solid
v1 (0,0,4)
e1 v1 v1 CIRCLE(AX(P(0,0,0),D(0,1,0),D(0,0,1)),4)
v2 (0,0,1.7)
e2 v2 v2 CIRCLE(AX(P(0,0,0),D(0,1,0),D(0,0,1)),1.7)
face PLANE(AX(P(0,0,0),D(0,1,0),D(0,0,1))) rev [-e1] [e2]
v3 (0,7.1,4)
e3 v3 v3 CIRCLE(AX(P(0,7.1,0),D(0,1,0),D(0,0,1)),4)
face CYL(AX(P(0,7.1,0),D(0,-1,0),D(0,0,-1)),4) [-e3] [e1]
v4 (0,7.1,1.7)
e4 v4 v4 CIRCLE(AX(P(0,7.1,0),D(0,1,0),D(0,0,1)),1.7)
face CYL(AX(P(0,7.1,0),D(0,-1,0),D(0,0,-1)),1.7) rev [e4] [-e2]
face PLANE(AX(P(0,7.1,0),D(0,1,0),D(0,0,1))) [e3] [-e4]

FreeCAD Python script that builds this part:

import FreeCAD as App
import Part
import Sketcher

V = App.Vector
Q = App.Units.Quantity

doc = App.newDocument("Part")
params = doc.addObject("Spreadsheet::Sheet", "Params")
for row, (alias, value) in enumerate([
    ("sketch1_diameter", "8 mm"),
    ("sketch1_diameter2", "3.4 mm"),
    ("pad1_length", "7.1 mm"),
], start=1):
    params.set(f"A{row}", alias)
    params.set(f"B{row}", "=" + value)
    params.setAlias(f"B{row}", alias)

body = doc.addObject("PartDesign::Body", "Body")

sketch1 = doc.addObject("Sketcher::SketchObject", "Sketch")
body.addObject(sketch1)
sketch1.AttachmentSupport = (doc.XZ_Plane, [""])
sketch1.MapMode = "FlatFace"
sketch1.addGeometry(Part.Circle(V(0, 0, 0), V(0, 0, 1), 4), False)
sketch1.addGeometry(Part.Circle(V(0, 0, 0), V(0, 0, 1), 1.7), False)
sketch1.addConstraint(Sketcher.Constraint("Coincident", 0, 3, -1, 1))
sketch1.addConstraint(Sketcher.Constraint("Coincident", 1, 3, -1, 1))
sketch1.addConstraint(Sketcher.Constraint("Diameter", 0, Q("8 mm")))
sketch1.addConstraint(Sketcher.Constraint("Diameter", 1, Q("3.4 mm")))
sketch1.setExpression("Constraints[2]", "Params.sketch1_diameter")
sketch1.setExpression("Constraints[3]", "Params.sketch1_diameter2")
pad1 = doc.addObject("PartDesign::Pad", "Pad")
body.addObject(pad1)
pad1.Profile = sketch1
pad1.setExpression("Length", "Params.pad1_length")
pad1.Reversed = True

doc.recompute()
